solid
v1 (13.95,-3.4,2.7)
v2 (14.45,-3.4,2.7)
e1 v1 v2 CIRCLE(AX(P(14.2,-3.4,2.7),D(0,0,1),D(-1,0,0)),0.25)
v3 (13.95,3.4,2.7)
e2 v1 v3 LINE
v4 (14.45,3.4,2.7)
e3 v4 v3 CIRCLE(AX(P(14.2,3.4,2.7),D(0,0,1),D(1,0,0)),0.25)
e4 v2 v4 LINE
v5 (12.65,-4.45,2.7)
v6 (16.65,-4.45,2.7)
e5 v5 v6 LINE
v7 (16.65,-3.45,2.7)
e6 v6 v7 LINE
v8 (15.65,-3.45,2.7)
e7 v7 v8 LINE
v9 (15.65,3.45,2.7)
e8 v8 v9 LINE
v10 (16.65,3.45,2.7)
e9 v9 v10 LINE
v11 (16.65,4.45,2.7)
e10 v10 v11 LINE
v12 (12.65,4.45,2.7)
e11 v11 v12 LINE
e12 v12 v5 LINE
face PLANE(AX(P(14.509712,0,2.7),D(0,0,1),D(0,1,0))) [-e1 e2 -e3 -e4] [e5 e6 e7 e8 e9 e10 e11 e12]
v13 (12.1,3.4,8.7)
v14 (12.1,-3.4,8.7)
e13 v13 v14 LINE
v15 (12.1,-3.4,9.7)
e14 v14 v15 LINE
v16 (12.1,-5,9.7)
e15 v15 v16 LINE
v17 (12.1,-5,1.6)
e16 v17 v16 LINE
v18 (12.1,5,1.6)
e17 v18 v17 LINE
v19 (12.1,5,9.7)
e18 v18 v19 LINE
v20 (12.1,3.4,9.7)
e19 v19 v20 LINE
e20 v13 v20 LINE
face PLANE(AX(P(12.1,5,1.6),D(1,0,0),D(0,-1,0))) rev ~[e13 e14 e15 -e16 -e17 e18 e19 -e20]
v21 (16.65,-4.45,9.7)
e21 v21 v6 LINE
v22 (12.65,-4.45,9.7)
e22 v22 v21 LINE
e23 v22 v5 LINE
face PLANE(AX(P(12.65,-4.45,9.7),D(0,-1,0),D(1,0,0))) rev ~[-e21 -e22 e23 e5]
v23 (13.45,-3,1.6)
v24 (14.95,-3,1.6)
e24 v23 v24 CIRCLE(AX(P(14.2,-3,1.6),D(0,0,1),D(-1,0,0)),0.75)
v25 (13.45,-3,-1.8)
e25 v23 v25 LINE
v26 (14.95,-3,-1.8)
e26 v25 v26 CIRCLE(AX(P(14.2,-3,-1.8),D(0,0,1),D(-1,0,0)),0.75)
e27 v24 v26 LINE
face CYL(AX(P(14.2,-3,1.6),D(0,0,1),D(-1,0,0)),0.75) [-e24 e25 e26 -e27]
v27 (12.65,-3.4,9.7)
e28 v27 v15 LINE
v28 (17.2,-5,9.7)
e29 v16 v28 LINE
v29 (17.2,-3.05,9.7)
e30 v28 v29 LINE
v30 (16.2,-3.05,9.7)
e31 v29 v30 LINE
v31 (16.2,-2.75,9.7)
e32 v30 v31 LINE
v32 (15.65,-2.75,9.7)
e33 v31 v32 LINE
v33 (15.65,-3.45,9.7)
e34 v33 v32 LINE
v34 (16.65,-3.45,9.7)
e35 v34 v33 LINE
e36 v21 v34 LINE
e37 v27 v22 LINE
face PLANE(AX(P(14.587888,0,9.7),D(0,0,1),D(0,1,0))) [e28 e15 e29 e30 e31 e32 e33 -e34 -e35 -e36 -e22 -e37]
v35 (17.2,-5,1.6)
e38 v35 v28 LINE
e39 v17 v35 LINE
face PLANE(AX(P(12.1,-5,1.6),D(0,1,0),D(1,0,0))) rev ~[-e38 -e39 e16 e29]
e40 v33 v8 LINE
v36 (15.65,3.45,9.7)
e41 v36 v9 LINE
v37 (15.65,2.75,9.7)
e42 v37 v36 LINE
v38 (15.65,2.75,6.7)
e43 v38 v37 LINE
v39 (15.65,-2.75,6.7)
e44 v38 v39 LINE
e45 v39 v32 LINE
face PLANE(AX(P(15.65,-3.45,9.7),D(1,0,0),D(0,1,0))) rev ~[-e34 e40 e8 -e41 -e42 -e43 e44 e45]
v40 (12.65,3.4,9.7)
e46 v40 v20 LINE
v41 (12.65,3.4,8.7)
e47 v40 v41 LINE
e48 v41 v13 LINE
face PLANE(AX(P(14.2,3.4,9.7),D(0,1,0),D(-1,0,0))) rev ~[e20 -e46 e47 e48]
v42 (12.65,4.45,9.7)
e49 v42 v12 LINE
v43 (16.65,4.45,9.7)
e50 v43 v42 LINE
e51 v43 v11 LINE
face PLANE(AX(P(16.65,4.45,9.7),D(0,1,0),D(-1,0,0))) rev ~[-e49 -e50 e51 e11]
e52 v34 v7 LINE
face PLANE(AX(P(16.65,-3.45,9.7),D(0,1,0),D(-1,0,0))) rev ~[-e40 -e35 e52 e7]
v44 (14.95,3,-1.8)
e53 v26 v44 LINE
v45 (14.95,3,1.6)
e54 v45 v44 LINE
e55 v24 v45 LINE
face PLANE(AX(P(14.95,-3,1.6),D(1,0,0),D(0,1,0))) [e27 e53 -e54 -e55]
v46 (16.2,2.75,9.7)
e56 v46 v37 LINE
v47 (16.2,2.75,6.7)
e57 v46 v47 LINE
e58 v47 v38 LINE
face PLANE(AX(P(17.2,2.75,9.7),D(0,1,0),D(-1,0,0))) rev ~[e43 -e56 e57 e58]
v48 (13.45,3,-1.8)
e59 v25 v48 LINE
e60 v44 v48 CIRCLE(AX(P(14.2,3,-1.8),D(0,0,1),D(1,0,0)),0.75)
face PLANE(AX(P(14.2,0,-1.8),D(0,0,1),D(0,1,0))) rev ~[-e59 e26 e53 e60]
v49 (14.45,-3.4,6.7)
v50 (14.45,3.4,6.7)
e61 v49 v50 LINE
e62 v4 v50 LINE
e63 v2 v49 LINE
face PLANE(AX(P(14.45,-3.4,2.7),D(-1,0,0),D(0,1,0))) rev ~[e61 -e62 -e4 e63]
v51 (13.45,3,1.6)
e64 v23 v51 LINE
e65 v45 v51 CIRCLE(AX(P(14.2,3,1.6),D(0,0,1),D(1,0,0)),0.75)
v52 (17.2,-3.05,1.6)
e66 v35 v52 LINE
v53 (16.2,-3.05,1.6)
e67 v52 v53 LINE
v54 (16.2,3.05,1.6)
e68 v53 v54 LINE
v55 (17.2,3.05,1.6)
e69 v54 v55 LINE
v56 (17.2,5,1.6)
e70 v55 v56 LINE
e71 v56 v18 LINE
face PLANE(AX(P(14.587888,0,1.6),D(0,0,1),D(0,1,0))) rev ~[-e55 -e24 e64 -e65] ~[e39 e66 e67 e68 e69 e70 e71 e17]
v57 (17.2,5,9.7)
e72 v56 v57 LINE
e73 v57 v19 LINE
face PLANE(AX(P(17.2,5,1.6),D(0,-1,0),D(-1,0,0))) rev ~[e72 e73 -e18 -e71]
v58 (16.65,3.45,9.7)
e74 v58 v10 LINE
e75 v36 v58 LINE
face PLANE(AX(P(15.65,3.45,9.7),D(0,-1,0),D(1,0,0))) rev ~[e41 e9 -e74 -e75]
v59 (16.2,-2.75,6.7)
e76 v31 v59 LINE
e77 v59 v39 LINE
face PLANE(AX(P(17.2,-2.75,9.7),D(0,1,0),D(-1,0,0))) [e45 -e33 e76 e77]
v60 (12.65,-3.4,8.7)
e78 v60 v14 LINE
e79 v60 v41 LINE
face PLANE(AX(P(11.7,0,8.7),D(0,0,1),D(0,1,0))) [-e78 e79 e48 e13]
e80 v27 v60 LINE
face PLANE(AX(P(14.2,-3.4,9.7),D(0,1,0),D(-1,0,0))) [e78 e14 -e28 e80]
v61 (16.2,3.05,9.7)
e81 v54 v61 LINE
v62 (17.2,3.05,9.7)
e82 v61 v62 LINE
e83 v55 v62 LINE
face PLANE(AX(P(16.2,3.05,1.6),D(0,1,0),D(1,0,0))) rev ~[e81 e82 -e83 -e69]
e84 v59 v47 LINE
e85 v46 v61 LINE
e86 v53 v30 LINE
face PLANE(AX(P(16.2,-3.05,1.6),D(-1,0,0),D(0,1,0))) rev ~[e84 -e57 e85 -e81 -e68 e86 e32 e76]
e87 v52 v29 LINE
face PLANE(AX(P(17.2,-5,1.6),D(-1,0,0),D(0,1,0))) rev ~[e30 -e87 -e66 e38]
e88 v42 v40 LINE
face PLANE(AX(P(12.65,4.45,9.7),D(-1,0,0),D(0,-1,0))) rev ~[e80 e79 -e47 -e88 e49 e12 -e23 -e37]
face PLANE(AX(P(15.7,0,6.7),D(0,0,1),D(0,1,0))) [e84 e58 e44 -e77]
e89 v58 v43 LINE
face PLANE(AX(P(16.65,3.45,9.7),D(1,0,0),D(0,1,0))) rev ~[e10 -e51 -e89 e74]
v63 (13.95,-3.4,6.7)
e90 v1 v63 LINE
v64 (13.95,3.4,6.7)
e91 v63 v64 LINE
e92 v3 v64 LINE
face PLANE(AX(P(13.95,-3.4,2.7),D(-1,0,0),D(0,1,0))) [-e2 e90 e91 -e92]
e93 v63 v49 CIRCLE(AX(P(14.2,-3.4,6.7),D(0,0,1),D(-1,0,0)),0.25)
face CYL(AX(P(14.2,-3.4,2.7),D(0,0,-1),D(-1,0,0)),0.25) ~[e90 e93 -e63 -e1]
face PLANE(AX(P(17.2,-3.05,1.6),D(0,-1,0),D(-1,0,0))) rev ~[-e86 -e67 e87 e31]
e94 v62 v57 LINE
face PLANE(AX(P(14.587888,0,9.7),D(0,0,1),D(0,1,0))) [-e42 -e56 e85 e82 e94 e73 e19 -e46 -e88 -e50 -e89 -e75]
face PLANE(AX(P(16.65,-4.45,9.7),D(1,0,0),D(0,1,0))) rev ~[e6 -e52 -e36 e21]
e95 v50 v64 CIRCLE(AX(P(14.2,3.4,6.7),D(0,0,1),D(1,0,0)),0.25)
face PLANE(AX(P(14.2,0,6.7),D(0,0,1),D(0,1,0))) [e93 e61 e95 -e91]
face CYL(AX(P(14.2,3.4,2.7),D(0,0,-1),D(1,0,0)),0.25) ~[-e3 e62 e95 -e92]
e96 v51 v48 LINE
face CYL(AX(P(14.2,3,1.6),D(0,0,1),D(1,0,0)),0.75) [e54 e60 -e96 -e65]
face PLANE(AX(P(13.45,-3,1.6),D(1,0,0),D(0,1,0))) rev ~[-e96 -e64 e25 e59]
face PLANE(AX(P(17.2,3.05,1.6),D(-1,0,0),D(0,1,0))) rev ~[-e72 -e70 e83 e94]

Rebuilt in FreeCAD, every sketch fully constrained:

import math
import FreeCAD as App
import Part
import Sketcher

V = App.Vector

doc = App.newDocument("Part")
body = doc.addObject("PartDesign::Body", "Body")

# Sketch on XY plane
sketch1 = body.newObject("Sketcher::SketchObject", "Sketch")
sketch1.AttachmentSupport = (doc.getObject("XY_Plane"), [""])
sketch1.MapMode = "FlatFace"
sketch1.addGeometry(Part.LineSegment(V(-5, 0, 0), V(-3, 0, 0)), False)
sketch1.addGeometry(Part.LineSegment(V(-3, 0, 0), V(-3, 1, 0)), False)
sketch1.addGeometry(Part.LineSegment(V(-3, 1, 0), V(3, 1, 0)), False)
sketch1.addGeometry(Part.LineSegment(V(3, 1, 0), V(3, 0, 0)), False)
sketch1.addGeometry(Part.LineSegment(V(3, 0, 0), V(5, 0, 0)), False)
sketch1.addGeometry(Part.LineSegment(V(5, 0, 0), V(5, 5.1, 0)), False)
sketch1.addGeometry(Part.LineSegment(V(5, 5.1, 0), V(-5, 5.1, 0)), False)
sketch1.addGeometry(Part.LineSegment(V(-5, 5.1, 0), V(-5, 0, 0)), False)
sketch1.addConstraint(Sketcher.Constraint("Coincident", 0, 2, 1, 1))
sketch1.addConstraint(Sketcher.Constraint("Coincident", 1, 2, 2, 1))
sketch1.addConstraint(Sketcher.Constraint("Coincident", 2, 2, 3, 1))
sketch1.addConstraint(Sketcher.Constraint("Coincident", 3, 2, 4, 1))
sketch1.addConstraint(Sketcher.Constraint("Coincident", 4, 2, 5, 1))
sketch1.addConstraint(Sketcher.Constraint("Coincident", 5, 2, 6, 1))
sketch1.addConstraint(Sketcher.Constraint("Coincident", 6, 2, 7, 1))
sketch1.addConstraint(Sketcher.Constraint("Coincident", 7, 2, 0, 1))
sketch1.addConstraint(Sketcher.Constraint("Horizontal", 0))
sketch1.addConstraint(Sketcher.Constraint("Vertical", 1))
sketch1.addConstraint(Sketcher.Constraint("Horizontal", 2))
sketch1.addConstraint(Sketcher.Constraint("Vertical", 3))
sketch1.addConstraint(Sketcher.Constraint("Horizontal", 4))
sketch1.addConstraint(Sketcher.Constraint("Vertical", 5))
sketch1.addConstraint(Sketcher.Constraint("Horizontal", 6))
sketch1.addConstraint(Sketcher.Constraint("Vertical", 7))
sketch1.addConstraint(Sketcher.Constraint("Symmetric", 0, 2, 3, 2, -1, 1))
sketch1.addConstraint(Sketcher.Constraint("Symmetric", 4, 2, 7, 2, -2))
sketch1.addConstraint(Sketcher.Constraint("DistanceX", 6, 2, 6, 1, 10.0))
sketch1.addConstraint(Sketcher.Constraint("DistanceY", 1, 1, 1, 2, 1.0))
sketch1.addConstraint(Sketcher.Constraint("DistanceX", 2, 1, 2, 2, 6.1))
sketch1.addConstraint(Sketcher.Constraint("DistanceY", 5, 1, 5, 2, 5.1))
pad1 = body.newObject("PartDesign::Pad", "Pad")
pad1.Profile = sketch1
pad1.Length = 8.1

# Sketch on XY plane
sketch2 = body.newObject("Sketcher::SketchObject", "Sketch001")
sketch2.AttachmentSupport = (doc.getObject("XY_Plane"), [""])
sketch2.MapMode = "FlatFace"
sketch2.AttachmentOffset = App.Placement(V(0, 0, 8.1), App.Rotation())
sketch2.addGeometry(Part.LineSegment(V(-4.5, 0.6, 0), V(-3.5, 0.6, 0)), False)
sketch2.addGeometry(Part.LineSegment(V(-3.5, 0.6, 0), V(-3.5, 1.6, 0)), False)
sketch2.addGeometry(Part.LineSegment(V(-3.5, 1.6, 0), V(3.5, 1.6, 0)), False)
sketch2.addGeometry(Part.LineSegment(V(3.5, 1.6, 0), V(3.5, 0.6, 0)), False)
sketch2.addGeometry(Part.LineSegment(V(3.5, 0.6, 0), V(4.5, 0.6, 0)), False)
sketch2.addGeometry(Part.LineSegment(V(4.5, 0.6, 0), V(4.5, 4.5, 0)), False)
sketch2.addGeometry(Part.LineSegment(V(4.5, 4.5, 0), V(-4.5, 4.5, 0)), False)
sketch2.addGeometry(Part.LineSegment(V(-4.5, 4.5, 0), V(-4.5, 0.6, 0)), False)
sketch2.addConstraint(Sketcher.Constraint("Coincident", 0, 2, 1, 1))
sketch2.addConstraint(Sketcher.Constraint("Coincident", 1, 2, 2, 1))
sketch2.addConstraint(Sketcher.Constraint("Coincident", 2, 2, 3, 1))
sketch2.addConstraint(Sketcher.Constraint("Coincident", 3, 2, 4, 1))
sketch2.addConstraint(Sketcher.Constraint("Coincident", 4, 2, 5, 1))
sketch2.addConstraint(Sketcher.Constraint("Coincident", 5, 2, 6, 1))
sketch2.addConstraint(Sketcher.Constraint("Coincident", 6, 2, 7, 1))
sketch2.addConstraint(Sketcher.Constraint("Coincident", 7, 2, 0, 1))
sketch2.addConstraint(Sketcher.Constraint("Horizontal", 0))
sketch2.addConstraint(Sketcher.Constraint("Vertical", 1))
sketch2.addConstraint(Sketcher.Constraint("Horizontal", 2))
sketch2.addConstraint(Sketcher.Constraint("Vertical", 3))
sketch2.addConstraint(Sketcher.Constraint("Horizontal", 4))
sketch2.addConstraint(Sketcher.Constraint("Vertical", 5))
sketch2.addConstraint(Sketcher.Constraint("Horizontal", 6))
sketch2.addConstraint(Sketcher.Constraint("Vertical", 7))
sketch2.addConstraint(Sketcher.Constraint("Symmetric", 0, 2, 3, 2, -2))
sketch2.addConstraint(Sketcher.Constraint("Equal", 0, 4))
sketch2.addConstraint(Sketcher.Constraint("Equal", 4, 1))
sketch2.addConstraint(Sketcher.Constraint("DistanceX", 0, 1, 0, 2, 1.0))
sketch2.addConstraint(Sketcher.Constraint("DistanceY", 5, 1, 5, 2, 4.0))
sketch2.addConstraint(Sketcher.Constraint("DistanceX", 2, 1, 2, 2, 6.9))
sketch2.addConstraint(Sketcher.Constraint("DistanceY", -1, 1, 0, 2, 0.55))
pocket1 = body.newObject("PartDesign::Pocket", "Pocket")
pocket1.Profile = sketch2
pocket1.Length = 7

# Sketch on XY plane
sketch3 = body.newObject("Sketcher::SketchObject", "Sketch002")
sketch3.AttachmentSupport = (doc.getObject("XY_Plane"), [""])
sketch3.MapMode = "FlatFace"
sketch3.AttachmentOffset = App.Placement(V(0, 0, 8.1), App.Rotation())
sketch3.addGeometry(Part.LineSegment(V(-3, 8, 0), V(-3, 3, 0)), False)
sketch3.addGeometry(Part.LineSegment(V(-3, 3, 0), V(3, 3, 0)), False)
sketch3.addGeometry(Part.LineSegment(V(3, 3, 0), V(3, 8, 0)), False)
sketch3.addGeometry(Part.LineSegment(V(3, 8, 0), V(-3, 8, 0)), False)
sketch3.addConstraint(Sketcher.Constraint("Coincident", 0, 2, 1, 1))
sketch3.addConstraint(Sketcher.Constraint("Coincident", 1, 2, 2, 1))
sketch3.addConstraint(Sketcher.Constraint("Coincident", 2, 2, 3, 1))
sketch3.addConstraint(Sketcher.Constraint("Coincident", 3, 2, 0, 1))
sketch3.addConstraint(Sketcher.Constraint("Vertical", 0))
sketch3.addConstraint(Sketcher.Constraint("Horizontal", 1))
sketch3.addConstraint(Sketcher.Constraint("Vertical", 2))
sketch3.addConstraint(Sketcher.Constraint("Horizontal", 3))
sketch3.addConstraint(Sketcher.Constraint("DistanceY", 0, 2, 0, 1, 5.0))
sketch3.addConstraint(Sketcher.Constraint("DistanceX", 1, 1, 1, 2, 6.8))
sketch3.addConstraint(Sketcher.Constraint("DistanceY", -1, 1, 0, 2, 3.0))
sketch3.addConstraint(Sketcher.Constraint("DistanceX", 0, 2, -1, 1, 3.4))
pocket2 = body.newObject("PartDesign::Pocket", "Pocket001")
pocket2.Profile = sketch3
pocket2.Length = 1

# Sketch on XY plane
sketch4 = body.newObject("Sketcher::SketchObject", "Sketch003")
sketch4.AttachmentSupport = (doc.getObject("XY_Plane"), [""])
sketch4.MapMode = "FlatFace"
sketch4.AttachmentOffset = App.Placement(V(0, 0, 8.1), App.Rotation())
sketch4.addGeometry(Part.LineSegment(V(-2.8, 3, 0), V(-2.8, 0, 0)), False)
sketch4.addGeometry(Part.LineSegment(V(-2.8, 0, 0), V(2.8, 0, 0)), False)
sketch4.addGeometry(Part.LineSegment(V(2.8, 0, 0), V(2.8, 3, 0)), False)
sketch4.addGeometry(Part.LineSegment(V(2.8, 3, 0), V(-2.8, 3, 0)), False)
sketch4.addConstraint(Sketcher.Constraint("Coincident", 0, 2, 1, 1))
sketch4.addConstraint(Sketcher.Constraint("Coincident", 1, 2, 2, 1))
sketch4.addConstraint(Sketcher.Constraint("Coincident", 2, 2, 3, 1))
sketch4.addConstraint(Sketcher.Constraint("Coincident", 3, 2, 0, 1))
sketch4.addConstraint(Sketcher.Constraint("Vertical", 0))
sketch4.addConstraint(Sketcher.Constraint("Horizontal", 1))
sketch4.addConstraint(Sketcher.Constraint("Vertical", 2))
sketch4.addConstraint(Sketcher.Constraint("Horizontal", 3))
sketch4.addConstraint(Sketcher.Constraint("Symmetric", 0, 2, 1, 2, -1, 1))
sketch4.addConstraint(Sketcher.Constraint("DistanceY", 0, 2, 0, 1, 3.0))
sketch4.addConstraint(Sketcher.Constraint("DistanceX", 1, 1, 1, 2, 5.5))
pocket3 = body.newObject("PartDesign::Pocket", "Pocket002")
pocket3.Profile = sketch4
pocket3.Length = 3

# Sketch on XY plane
sketch5 = body.newObject("Sketcher::SketchObject", "Sketch004")
sketch5.AttachmentSupport = (doc.getObject("XY_Plane"), [""])
sketch5.MapMode = "FlatFace"
sketch5.AttachmentOffset = App.Placement(V(0, 0, 1.1), App.Rotation())
sketch5.addGeometry(Part.ArcOfCircle(Part.Circle(V(-3.4, 3, 0), V(0, 0, 1), 0.25), math.radians(90), math.radians(270)), False)
sketch5.addGeometry(Part.LineSegment(V(-3.4, 2.75, 0), V(3.4, 2.75, 0)), False)
sketch5.addGeometry(Part.ArcOfCircle(Part.Circle(V(3.4, 3, 0), V(0, 0, 1), 0.25), math.radians(-90), math.radians(90)), False)
sketch5.addGeometry(Part.LineSegment(V(3.4, 3.25, 0), V(-3.4, 3.25, 0)), False)
sketch5.addConstraint(Sketcher.Constraint("Tangent", 0, 2, 1, 1))
sketch5.addConstraint(Sketcher.Constraint("Tangent", 1, 2, 2, 1))
sketch5.addConstraint(Sketcher.Constraint("Tangent", 2, 2, 3, 1))
sketch5.addConstraint(Sketcher.Constraint("Tangent", 3, 2, 0, 1))
sketch5.addConstraint(Sketcher.Constraint("Horizontal", 1))
sketch5.addConstraint(Sketcher.Constraint("Horizontal", 3))
sketch5.addConstraint(Sketcher.Constraint("Radius", 0, 0.25))
sketch5.addConstraint(Sketcher.Constraint("DistanceX", 1, 1, 1, 2, 6.8))
sketch5.addConstraint(Sketcher.Constraint("DistanceY", -1, 1, 0, 3, 3.0))
sketch5.addConstraint(Sketcher.Constraint("DistanceX", 0, 3, -1, 1, 3.4))
pad2 = body.newObject("PartDesign::Pad", "Pad001")
pad2.Profile = sketch5
pad2.Length = 4

# Sketch on XY plane
sketch6 = body.newObject("Sketcher::SketchObject", "Sketch005")
sketch6.AttachmentSupport = (doc.getObject("XY_Plane"), [""])
sketch6.MapMode = "FlatFace"
sketch6.addGeometry(Part.ArcOfCircle(Part.Circle(V(-3, 3, 0), V(0, 0, 1), 0.8), math.radians(90), math.radians(270)), False)
sketch6.addGeometry(Part.LineSegment(V(-3, 2.2, 0), V(3, 2.2, 0)), False)
sketch6.addGeometry(Part.ArcOfCircle(Part.Circle(V(3, 3, 0), V(0, 0, 1), 0.8), math.radians(-90), math.radians(90)), False)
sketch6.addGeometry(Part.LineSegment(V(3, 3.8, 0), V(-3, 3.8, 0)), False)
sketch6.addConstraint(Sketcher.Constraint("Tangent", 0, 2, 1, 1))
sketch6.addConstraint(Sketcher.Constraint("Tangent", 1, 2, 2, 1))
sketch6.addConstraint(Sketcher.Constraint("Tangent", 2, 2, 3, 1))
sketch6.addConstraint(Sketcher.Constraint("Tangent", 3, 2, 0, 1))
sketch6.addConstraint(Sketcher.Constraint("Horizontal", 1))
sketch6.addConstraint(Sketcher.Constraint("Horizontal", 3))
sketch6.addConstraint(Sketcher.Constraint("DistanceX", 1, 1, 1, 2, 6.0))
sketch6.addConstraint(Sketcher.Constraint("Radius", 0, 0.75))
sketch6.addConstraint(Sketcher.Constraint("DistanceX", 0, 3, -1, 1, 3.0))
sketch6.addConstraint(Sketcher.Constraint("DistanceY", -1, 1, 0, 3, 3.0))
pad3 = body.newObject("PartDesign::Pad", "Pad002")
pad3.Profile = sketch6
pad3.Length = 3.4
pad3.Reversed = True
body2 = doc.addObject("PartDesign::Body", "Body001")
doc.recompute()

body.Placement = App.Placement(V(-13.8, 0, 1.6), App.Rotation(V(0, 0, 1), 90))
boolean = body2.newObject("PartDesign::Boolean", "Boolean")
boolean.Type = "Fuse"
boolean.addObjects([body])
body3 = doc.addObject("PartDesign::Body", "Body002")
doc.recompute()

body2.Placement = App.Placement(V(-0.2, 0, 0), App.Rotation(V(0, 0, 1), 0))
boolean2 = body3.newObject("PartDesign::Boolean", "Boolean001")
boolean2.Type = "Fuse"
boolean2.addObjects([body2])
body4 = doc.addObject("PartDesign::Body", "Body003")
doc.recompute()

body3.Placement = App.Placement(V(31.2, 0, 0), App.Rotation(V(0, 0, 1), 0))
boolean3 = body4.newObject("PartDesign::Boolean", "Boolean002")
boolean3.Type = "Fuse"
boolean3.addObjects([body3])

doc.recompute()
